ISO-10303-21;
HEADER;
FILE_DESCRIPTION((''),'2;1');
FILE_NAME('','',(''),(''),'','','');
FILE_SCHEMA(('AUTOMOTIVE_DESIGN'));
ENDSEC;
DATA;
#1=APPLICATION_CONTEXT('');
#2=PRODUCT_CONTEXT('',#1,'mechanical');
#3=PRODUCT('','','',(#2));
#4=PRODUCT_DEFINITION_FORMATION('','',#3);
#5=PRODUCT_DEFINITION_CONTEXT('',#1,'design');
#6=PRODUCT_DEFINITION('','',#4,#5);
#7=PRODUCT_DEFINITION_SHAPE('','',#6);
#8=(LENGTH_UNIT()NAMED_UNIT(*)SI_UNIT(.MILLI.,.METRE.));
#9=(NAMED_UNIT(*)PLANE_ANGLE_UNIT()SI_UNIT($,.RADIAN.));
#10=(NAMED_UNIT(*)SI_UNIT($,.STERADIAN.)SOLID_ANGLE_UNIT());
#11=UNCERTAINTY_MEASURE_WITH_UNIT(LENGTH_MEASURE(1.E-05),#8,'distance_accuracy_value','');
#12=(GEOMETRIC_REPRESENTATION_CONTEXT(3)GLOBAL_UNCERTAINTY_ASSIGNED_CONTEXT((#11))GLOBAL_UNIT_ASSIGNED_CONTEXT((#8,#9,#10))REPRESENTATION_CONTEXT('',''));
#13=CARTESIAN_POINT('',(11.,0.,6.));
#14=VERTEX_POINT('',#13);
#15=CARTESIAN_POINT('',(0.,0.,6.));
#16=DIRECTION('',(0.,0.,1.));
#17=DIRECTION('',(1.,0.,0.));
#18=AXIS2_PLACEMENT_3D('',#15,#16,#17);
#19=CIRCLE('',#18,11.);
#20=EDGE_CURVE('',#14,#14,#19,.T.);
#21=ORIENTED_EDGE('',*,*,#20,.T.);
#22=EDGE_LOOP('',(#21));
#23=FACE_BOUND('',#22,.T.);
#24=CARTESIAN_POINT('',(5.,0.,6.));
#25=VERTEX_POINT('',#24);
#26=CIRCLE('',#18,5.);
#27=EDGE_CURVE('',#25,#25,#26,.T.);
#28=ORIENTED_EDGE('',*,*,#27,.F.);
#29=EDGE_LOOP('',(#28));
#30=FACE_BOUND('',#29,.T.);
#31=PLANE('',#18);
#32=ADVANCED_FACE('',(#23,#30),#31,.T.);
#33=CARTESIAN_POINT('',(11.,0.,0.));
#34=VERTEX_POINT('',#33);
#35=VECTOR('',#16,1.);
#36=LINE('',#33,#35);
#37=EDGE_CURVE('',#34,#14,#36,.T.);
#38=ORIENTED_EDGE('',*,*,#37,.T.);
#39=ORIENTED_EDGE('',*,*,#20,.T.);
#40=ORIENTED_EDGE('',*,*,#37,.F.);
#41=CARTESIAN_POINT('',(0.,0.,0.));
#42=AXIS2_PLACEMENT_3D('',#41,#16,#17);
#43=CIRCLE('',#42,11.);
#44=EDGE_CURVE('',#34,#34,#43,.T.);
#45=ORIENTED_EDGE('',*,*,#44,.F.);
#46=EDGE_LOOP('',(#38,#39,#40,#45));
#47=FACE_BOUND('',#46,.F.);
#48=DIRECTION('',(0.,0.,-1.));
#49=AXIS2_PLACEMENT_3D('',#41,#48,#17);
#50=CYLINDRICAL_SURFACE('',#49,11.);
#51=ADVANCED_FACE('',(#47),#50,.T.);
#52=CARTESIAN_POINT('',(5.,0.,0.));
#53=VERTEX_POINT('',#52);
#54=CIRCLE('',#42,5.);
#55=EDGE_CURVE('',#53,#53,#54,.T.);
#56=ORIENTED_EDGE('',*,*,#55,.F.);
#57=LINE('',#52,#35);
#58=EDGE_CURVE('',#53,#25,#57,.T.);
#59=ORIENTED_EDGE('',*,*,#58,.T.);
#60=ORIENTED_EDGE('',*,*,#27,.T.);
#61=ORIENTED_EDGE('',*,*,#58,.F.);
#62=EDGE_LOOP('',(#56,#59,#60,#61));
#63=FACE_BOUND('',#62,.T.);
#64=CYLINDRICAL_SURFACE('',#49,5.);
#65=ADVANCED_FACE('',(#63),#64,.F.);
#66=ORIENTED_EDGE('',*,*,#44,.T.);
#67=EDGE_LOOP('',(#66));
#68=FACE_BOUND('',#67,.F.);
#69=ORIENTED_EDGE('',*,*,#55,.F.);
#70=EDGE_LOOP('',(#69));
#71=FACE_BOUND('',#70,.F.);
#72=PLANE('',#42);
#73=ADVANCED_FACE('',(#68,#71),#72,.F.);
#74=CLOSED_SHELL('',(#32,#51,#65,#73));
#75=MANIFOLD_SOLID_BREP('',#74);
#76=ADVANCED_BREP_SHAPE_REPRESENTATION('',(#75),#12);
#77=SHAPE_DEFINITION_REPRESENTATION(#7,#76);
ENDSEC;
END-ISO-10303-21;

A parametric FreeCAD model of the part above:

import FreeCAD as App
import Part
import Sketcher
Q = App.Units.Quantity

doc = App.newDocument("Part")
body = doc.addObject("PartDesign::Body", "Body")

# Sketch on XY plane
sketch1 = body.newObject("Sketcher::SketchObject", "Sketch")
sketch1.AttachmentSupport = (doc.getObject("XY_Plane"), [""])
sketch1.MapMode = "FlatFace"
sketch1.addGeometry([
    Part.Circle(App.Vector(0, 0, 0), App.Vector(0, 0, 1), 11),
    Part.Circle(App.Vector(0, 0, 0), App.Vector(0, 0, 1), 5),
], False)
sketch1.addConstraint([
    Sketcher.Constraint("Coincident", 0, 3, -1, 1),
    Sketcher.Constraint("Coincident", 1, 3, -1, 1),
    Sketcher.Constraint("Diameter", 0, Q("22 mm")),
    Sketcher.Constraint("Diameter", 1, Q("10 mm")),
])
pad1 = body.newObject("PartDesign::Pad", "Pad")
pad1.Profile = sketch1
pad1.Length = 6

doc.recompute()
